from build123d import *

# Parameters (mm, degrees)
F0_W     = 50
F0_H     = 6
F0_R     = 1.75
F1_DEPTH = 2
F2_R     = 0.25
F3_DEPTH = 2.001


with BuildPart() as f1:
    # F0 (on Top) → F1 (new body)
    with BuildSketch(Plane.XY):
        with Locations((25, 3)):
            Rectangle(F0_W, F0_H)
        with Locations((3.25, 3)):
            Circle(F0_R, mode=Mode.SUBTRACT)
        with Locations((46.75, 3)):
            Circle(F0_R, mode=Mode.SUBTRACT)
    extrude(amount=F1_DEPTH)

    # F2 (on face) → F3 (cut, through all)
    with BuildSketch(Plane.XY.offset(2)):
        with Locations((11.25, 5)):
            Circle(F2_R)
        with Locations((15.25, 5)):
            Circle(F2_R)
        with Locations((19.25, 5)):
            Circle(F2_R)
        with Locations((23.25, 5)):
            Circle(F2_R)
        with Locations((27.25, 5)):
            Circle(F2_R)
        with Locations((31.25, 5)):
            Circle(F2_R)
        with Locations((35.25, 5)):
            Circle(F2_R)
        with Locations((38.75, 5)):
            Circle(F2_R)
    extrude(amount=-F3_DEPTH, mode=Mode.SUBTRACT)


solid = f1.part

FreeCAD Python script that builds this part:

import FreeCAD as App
import Part
import Sketcher
from FreeCAD import Vector


def add_polygon(sketch, points):
    """Adds a closed chain of lines whose ends are joined by coincident constraints."""
    first, n = sketch.GeometryCount, len(points)
    for a, b in zip(points, points[1:] + points[:1]):
        sketch.addGeometry(Part.LineSegment(App.Vector(*a, 0), App.Vector(*b, 0)), False)
    for i in range(n):
        sketch.addConstraint(Sketcher.Constraint("Coincident", first + i, 2, first + (i + 1) % n, 1))

doc = App.newDocument("Part")
body = doc.addObject("PartDesign::Body", "Body")

# Sketch on XY plane
sketch1 = doc.addObject("Sketcher::SketchObject", "Sketch")
body.addObject(sketch1)
sketch1.AttachmentSupport = (doc.XY_Plane, [""])
sketch1.MapMode = "FlatFace"
add_polygon(sketch1, [(0, 6), (0, 0), (50, 0), (50, 6)])  # lines 0-3
sketch1.addGeometry(Part.Circle(Vector(3.2, 3, 0), Vector(0, 0, 1), 1.8), False)  # 4
sketch1.addGeometry(Part.Circle(Vector(46.8, 3, 0), Vector(0, 0, 1), 1.8), False)  # 5
sketch1.addConstraint([
    Sketcher.Constraint("Vertical", 0),
    Sketcher.Constraint("Horizontal", 1),
    Sketcher.Constraint("Vertical", 2),
    Sketcher.Constraint("Horizontal", 3),
    Sketcher.Constraint("Coincident", 0, 2, -1, 1),
    Sketcher.Constraint("Equal", 4, 5),
    Sketcher.Constraint("Horizontal", 4, 3, 5, 3),
    Sketcher.Constraint("Diameter", 4, 3.5),
    Sketcher.Constraint("DistanceX", 1, 1, 1, 2, 50.0),
    Sketcher.Constraint("DistanceY", 0, 2, 0, 1, 6.0),
    Sketcher.Constraint("DistanceY", -1, 1, 4, 3, 3.0),
    Sketcher.Constraint("DistanceX", 4, 3, 5, 3, 43.5),
    Sketcher.Constraint("DistanceX", -1, 1, 4, 3, 3.25),
])
pad1 = doc.addObject("PartDesign::Pad", "Pad")
body.addObject(pad1)
pad1.Profile = sketch1
pad1.Length = 2

# Sketch on XY plane
sketch2 = doc.addObject("Sketcher::SketchObject", "Sketch001")
body.addObject(sketch2)
sketch2.AttachmentSupport = (doc.XY_Plane, [""])
sketch2.MapMode = "FlatFace"
sketch2.AttachmentOffset = App.Placement(Vector(0, 0, 2), App.Rotation())
sketch2.addGeometry([
    Part.Circle(Vector(11.25, 5, 0), Vector(0, 0, 1), 0.25),  # 0
    Part.Circle(Vector(15.25, 5, 0), Vector(0, 0, 1), 0.25),  # 1
    Part.Circle(Vector(19.25, 5, 0), Vector(0, 0, 1), 0.25),  # 2
    Part.Circle(Vector(23.25, 5, 0), Vector(0, 0, 1), 0.25),  # 3
    Part.Circle(Vector(27.25, 5, 0), Vector(0, 0, 1), 0.25),  # 4
    Part.Circle(Vector(31.25, 5, 0), Vector(0, 0, 1), 0.25),  # 5
    Part.Circle(Vector(35.25, 5, 0), Vector(0, 0, 1), 0.25),  # 6
    Part.Circle(Vector(38.75, 5, 0), Vector(0, 0, 1), 0.25),  # 7
], False)
sketch2.addConstraint([
    Sketcher.Constraint("Equal", 0, 1),
    Sketcher.Constraint("Equal", 1, 2),
    Sketcher.Constraint("Equal", 2, 3),
    Sketcher.Constraint("Equal", 3, 4),
    Sketcher.Constraint("Equal", 4, 5),
    Sketcher.Constraint("Equal", 5, 6),
    Sketcher.Constraint("Equal", 6, 7),
    Sketcher.Constraint("Horizontal", 0, 3, 1, 3),
    Sketcher.Constraint("Horizontal", 1, 3, 2, 3),
    Sketcher.Constraint("Horizontal", 2, 3, 3, 3),
    Sketcher.Constraint("Horizontal", 3, 3, 4, 3),
    Sketcher.Constraint("Horizontal", 4, 3, 5, 3),
    Sketcher.Constraint("Horizontal", 5, 3, 6, 3),
    Sketcher.Constraint("Horizontal", 6, 3, 7, 3),
    Sketcher.Constraint("Diameter", 0, 0.5),
    Sketcher.Constraint("DistanceY", -1, 1, 0, 3, 5.0),
    Sketcher.Constraint("DistanceX", 0, 3, 1, 3, 4.0),
    Sketcher.Constraint("DistanceX", 1, 3, 2, 3, 4.0),
    Sketcher.Constraint("DistanceX", 2, 3, 3, 3, 4.0),
    Sketcher.Constraint("DistanceX", 3, 3, 4, 3, 4.0),
    Sketcher.Constraint("DistanceX", 4, 3, 5, 3, 4.0),
    Sketcher.Constraint("DistanceX", 5, 3, 6, 3, 4.0),
    Sketcher.Constraint("DistanceX", 6, 3, 7, 3, 3.5),
    Sketcher.Constraint("DistanceX", -1, 1, 0, 3, 11.25),
])
pocket1 = doc.addObject("PartDesign::Pocket", "Pocket")
body.addObject(pocket1)
pocket1.Profile = sketch2
pocket1.Type = "ThroughAll"

doc.recompute()
